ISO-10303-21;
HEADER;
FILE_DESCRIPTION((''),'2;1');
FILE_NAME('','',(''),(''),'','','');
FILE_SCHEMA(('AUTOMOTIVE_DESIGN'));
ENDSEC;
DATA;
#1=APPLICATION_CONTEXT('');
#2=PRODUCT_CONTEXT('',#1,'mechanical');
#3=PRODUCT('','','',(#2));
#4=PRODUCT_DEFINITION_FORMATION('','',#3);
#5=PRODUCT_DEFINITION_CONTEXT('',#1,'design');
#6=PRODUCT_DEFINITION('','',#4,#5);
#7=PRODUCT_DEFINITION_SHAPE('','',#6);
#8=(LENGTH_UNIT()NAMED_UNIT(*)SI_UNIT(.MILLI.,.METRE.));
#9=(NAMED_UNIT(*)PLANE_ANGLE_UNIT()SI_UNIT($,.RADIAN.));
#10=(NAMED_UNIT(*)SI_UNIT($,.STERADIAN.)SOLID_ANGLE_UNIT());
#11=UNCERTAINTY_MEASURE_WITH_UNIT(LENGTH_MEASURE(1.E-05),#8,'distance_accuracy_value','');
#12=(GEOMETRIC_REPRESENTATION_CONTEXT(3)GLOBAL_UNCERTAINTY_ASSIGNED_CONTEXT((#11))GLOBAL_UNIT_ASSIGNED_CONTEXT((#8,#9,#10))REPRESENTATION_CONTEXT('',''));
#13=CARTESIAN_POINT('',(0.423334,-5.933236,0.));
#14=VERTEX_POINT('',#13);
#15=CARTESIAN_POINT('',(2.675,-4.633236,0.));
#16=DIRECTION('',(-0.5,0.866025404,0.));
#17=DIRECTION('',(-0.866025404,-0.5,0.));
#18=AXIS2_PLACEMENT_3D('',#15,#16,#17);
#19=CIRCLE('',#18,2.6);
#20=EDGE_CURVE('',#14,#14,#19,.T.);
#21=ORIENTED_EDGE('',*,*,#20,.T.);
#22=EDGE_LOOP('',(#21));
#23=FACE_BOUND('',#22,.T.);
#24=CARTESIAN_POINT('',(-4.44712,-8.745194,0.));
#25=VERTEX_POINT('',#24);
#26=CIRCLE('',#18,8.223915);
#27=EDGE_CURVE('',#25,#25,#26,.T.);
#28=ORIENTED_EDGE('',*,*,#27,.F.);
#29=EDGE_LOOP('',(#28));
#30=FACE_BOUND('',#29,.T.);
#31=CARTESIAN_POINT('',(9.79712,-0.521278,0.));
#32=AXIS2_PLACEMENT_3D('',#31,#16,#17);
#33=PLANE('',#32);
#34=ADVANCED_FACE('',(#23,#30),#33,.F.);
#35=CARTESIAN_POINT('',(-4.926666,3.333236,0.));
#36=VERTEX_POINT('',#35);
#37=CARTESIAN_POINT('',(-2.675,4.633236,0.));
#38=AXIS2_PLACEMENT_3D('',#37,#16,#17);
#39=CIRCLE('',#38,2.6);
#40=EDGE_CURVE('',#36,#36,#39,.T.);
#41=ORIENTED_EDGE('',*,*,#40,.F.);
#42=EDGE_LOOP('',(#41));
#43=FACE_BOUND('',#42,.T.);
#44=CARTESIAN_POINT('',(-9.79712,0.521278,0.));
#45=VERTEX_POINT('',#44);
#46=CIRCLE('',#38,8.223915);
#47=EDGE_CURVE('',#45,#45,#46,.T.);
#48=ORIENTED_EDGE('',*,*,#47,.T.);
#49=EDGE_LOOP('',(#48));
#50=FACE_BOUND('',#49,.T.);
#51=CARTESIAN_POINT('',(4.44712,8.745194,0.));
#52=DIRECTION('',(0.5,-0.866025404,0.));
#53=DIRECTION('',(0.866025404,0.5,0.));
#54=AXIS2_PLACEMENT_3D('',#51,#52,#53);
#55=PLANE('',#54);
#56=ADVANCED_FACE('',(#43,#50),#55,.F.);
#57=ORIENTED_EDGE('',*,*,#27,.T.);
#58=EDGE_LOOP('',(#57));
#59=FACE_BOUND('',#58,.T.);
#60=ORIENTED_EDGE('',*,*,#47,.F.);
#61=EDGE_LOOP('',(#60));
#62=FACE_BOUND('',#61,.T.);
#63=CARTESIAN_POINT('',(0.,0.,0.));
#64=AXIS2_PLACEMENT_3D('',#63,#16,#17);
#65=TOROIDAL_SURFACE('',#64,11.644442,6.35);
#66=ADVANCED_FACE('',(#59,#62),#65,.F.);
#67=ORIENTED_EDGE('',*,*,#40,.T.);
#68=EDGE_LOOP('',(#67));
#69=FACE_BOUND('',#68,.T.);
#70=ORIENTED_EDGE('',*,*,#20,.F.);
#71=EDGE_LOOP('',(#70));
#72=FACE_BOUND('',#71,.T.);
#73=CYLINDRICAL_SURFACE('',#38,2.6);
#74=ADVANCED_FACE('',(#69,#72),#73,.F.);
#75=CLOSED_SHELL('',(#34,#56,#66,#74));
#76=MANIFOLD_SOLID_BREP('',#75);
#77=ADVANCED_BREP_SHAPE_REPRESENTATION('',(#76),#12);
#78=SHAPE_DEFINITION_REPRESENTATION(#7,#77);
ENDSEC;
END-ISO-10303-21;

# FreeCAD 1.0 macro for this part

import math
import FreeCAD as App
import Part
import Sketcher
Q = App.Units.Quantity

doc = App.newDocument("Part")
body = doc.addObject("PartDesign::Body", "Body")

sketch1 = body.newObject("Sketcher::SketchObject", "Sketch")
sketch1.AttachmentSupport = (doc.getObject("XY_Plane"), [""])
sketch1.MapMode = "FlatFace"
sketch1.addGeometry([
    Part.LineSegment(App.Vector(0, 6, 0), App.Vector(5, -3, 0)),
    Part.LineSegment(App.Vector(5, -3, 0), App.Vector(10, -1, 0)),
    Part.ArcOfCircle(Part.Circle(App.Vector(10, 6, 0), App.Vector(0, 0, 1), 6), math.radians(153), math.radians(267)),
    Part.LineSegment(App.Vector(4, 9, 0), App.Vector(0, 6, 0)),
], False)
sketch1.addGeometry(Part.LineSegment(App.Vector(-3, 5, 0), App.Vector(3, -5, 0)), True)
sketch1.addConstraint([
    Sketcher.Constraint("Coincident", 0, 2, 1, 1),
    Sketcher.Constraint("Coincident", 1, 2, 2, 2),
    Sketcher.Constraint("Coincident", 2, 1, 3, 1),
    Sketcher.Constraint("Coincident", 3, 2, 0, 1),
    Sketcher.Constraint("Symmetric", 4, 1, 4, 2, -1, 1),
    Sketcher.Constraint("Perpendicular", 0, 1),
    Sketcher.Constraint("Parallel", 1, 3),
    Sketcher.Constraint("Perpendicular", 3, 4),
    Sketcher.Constraint("Equal", 1, 3),
    Sketcher.Constraint("Equal", 0, 4),
    Sketcher.Constraint("Angle", 0, Q("-60 deg")),
    Sketcher.Constraint("Radius", 2, Q("6.35 mm")),
    Sketcher.Constraint("Distance", 0, Q("10.7 mm")),
    Sketcher.Constraint("DistanceY", 4, 1, 3, 2, Q("1.3 mm")),
    Sketcher.Constraint("DistanceY", -1, 1, 2, 3, Q("5.822221 mm")),
    Sketcher.Constraint("DistanceX", -1, 1, 1, 2, Q("9.79712 mm")),
])
revolution = body.newObject("PartDesign::Revolution", "Revolution")
revolution.Profile = sketch1
revolution.ReferenceAxis = (sketch1, ["Axis0"])
revolution.Angle = 360

doc.recompute()
